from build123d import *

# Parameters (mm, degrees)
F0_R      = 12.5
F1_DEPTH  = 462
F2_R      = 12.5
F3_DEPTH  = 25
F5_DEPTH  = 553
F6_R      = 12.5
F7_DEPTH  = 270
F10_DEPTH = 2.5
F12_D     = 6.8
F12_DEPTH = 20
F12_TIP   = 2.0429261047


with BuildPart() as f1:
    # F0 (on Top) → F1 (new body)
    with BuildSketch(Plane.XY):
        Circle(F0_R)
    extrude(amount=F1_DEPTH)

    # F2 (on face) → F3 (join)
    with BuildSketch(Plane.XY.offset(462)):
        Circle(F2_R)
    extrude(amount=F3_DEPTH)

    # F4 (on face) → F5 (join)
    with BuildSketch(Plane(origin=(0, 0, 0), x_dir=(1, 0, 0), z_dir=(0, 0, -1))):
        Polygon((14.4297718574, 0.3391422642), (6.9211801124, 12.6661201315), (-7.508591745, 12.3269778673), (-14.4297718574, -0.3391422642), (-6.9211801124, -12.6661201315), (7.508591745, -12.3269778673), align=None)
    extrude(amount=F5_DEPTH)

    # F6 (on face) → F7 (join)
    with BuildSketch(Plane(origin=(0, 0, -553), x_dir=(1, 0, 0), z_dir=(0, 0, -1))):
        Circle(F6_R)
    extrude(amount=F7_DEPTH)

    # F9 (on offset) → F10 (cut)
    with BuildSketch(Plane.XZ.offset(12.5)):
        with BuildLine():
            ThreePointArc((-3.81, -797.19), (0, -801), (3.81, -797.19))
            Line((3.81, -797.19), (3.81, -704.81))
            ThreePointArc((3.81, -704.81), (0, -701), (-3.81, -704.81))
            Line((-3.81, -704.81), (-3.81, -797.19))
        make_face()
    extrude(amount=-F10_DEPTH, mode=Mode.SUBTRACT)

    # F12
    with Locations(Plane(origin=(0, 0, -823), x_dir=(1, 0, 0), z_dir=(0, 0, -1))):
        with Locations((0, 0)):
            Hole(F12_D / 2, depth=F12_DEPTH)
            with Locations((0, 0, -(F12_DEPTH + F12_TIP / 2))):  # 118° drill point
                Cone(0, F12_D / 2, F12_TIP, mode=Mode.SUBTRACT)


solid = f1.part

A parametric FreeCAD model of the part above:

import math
import FreeCAD as App
import Part
import Sketcher
from FreeCAD import Vector
Q = App.Units.Quantity


def add_polygon(sketch, points):
    """Adds a closed chain of lines whose ends are joined by coincident constraints."""
    first, n = sketch.GeometryCount, len(points)
    for a, b in zip(points, points[1:] + points[:1]):
        sketch.addGeometry(Part.LineSegment(App.Vector(*a, 0), App.Vector(*b, 0)), False)
    for i in range(n):
        sketch.addConstraint(Sketcher.Constraint("Coincident", first + i, 2, first + (i + 1) % n, 1))

doc = App.newDocument("Part")
body = doc.addObject("PartDesign::Body", "Body")

# Sketch on XY plane
sketch1 = body.newObject("Sketcher::SketchObject", "Sketch")
sketch1.AttachmentSupport = (doc.getObject("XY_Plane"), [""])
sketch1.MapMode = "FlatFace"
sketch1.addGeometry(Part.Circle(Vector(0, 0, 0), Vector(0, 0, 1), 12), False)
sketch1.addConstraint(Sketcher.Constraint("Coincident", 0, 3, -1, 1))
sketch1.addConstraint(Sketcher.Constraint("Diameter", 0, Q("25 mm")))
pad1 = body.newObject("PartDesign::Pad", "Pad")
pad1.Profile = sketch1
pad1.Length = 462

# Sketch on XY plane
sketch2 = body.newObject("Sketcher::SketchObject", "Sketch001")
sketch2.AttachmentSupport = (doc.getObject("XY_Plane"), [""])
sketch2.MapMode = "FlatFace"
sketch2.AttachmentOffset = App.Placement(Vector(0, 0, 462), App.Rotation())
sketch2.addGeometry(Part.Circle(Vector(0, 0, 0), Vector(0, 0, 1), 12), False)
sketch2.addConstraint(Sketcher.Constraint("Coincident", 0, 3, -1, 1))
sketch2.addConstraint(Sketcher.Constraint("Diameter", 0, Q("25 mm")))
pad2 = body.newObject("PartDesign::Pad", "Pad001")
pad2.Profile = sketch2
pad2.Length = 25

# Sketch on XY plane
sketch3 = body.newObject("Sketcher::SketchObject", "Sketch002")
sketch3.AttachmentSupport = (doc.getObject("XY_Plane"), [""])
sketch3.MapMode = "FlatFace"
add_polygon(sketch3, [(14, 0), (7, -13), (-8, -12), (-14, 0), (-7, 13), (8, 12)])  # lines 0-5
sketch3.addConstraint(Sketcher.Constraint("Symmetric", 0, 2, 3, 2, -1, 1))
sketch3.addConstraint(Sketcher.Constraint("Symmetric", 1, 2, 4, 2, -1, 1))
sketch3.addConstraint(Sketcher.Constraint("Symmetric", 2, 2, 5, 2, -1, 1))
sketch3.addConstraint(Sketcher.Constraint("Equal", 0, 1))
sketch3.addConstraint(Sketcher.Constraint("Equal", 1, 2))
sketch3.addConstraint(Sketcher.Constraint("DistanceX", -1, 1, 0, 2, Q("6.92118 mm")))
sketch3.addConstraint(Sketcher.Constraint("DistanceY", 0, 2, -1, 1, Q("12.66612 mm")))
sketch3.addConstraint(Sketcher.Constraint("DistanceX", 1, 2, -1, 1, Q("7.508592 mm")))
sketch3.addConstraint(Sketcher.Constraint("DistanceX", 2, 2, -1, 1, Q("14.429772 mm")))
pad3 = body.newObject("PartDesign::Pad", "Pad002")
pad3.Profile = sketch3
pad3.Length = 553
pad3.Reversed = True

# Sketch on XY plane
sketch4 = body.newObject("Sketcher::SketchObject", "Sketch003")
sketch4.AttachmentSupport = (doc.getObject("XY_Plane"), [""])
sketch4.MapMode = "FlatFace"
sketch4.AttachmentOffset = App.Placement(Vector(0, 0, -553), App.Rotation())
sketch4.addGeometry(Part.Circle(Vector(0, 0, 0), Vector(0, 0, 1), 12), False)
sketch4.addConstraint(Sketcher.Constraint("Coincident", 0, 3, -1, 1))
sketch4.addConstraint(Sketcher.Constraint("Diameter", 0, Q("25 mm")))
pad4 = body.newObject("PartDesign::Pad", "Pad003")
pad4.Profile = sketch4
pad4.Length = 270
pad4.Reversed = True

# Sketch on XZ plane
sketch5 = body.newObject("Sketcher::SketchObject", "Sketch004")
sketch5.AttachmentSupport = (doc.getObject("XZ_Plane"), [""])
sketch5.MapMode = "FlatFace"
sketch5.AttachmentOffset = App.Placement(Vector(0, 0, 12.5), App.Rotation())
sketch5.addGeometry(Part.ArcOfCircle(Part.Circle(Vector(0, -797.2, 0), Vector(0, 0, 1), 3.8), math.radians(180), math.radians(360)), False)
sketch5.addGeometry(Part.LineSegment(Vector(3.8, -797.2, 0), Vector(3.8, -704.8, 0)), False)
sketch5.addGeometry(Part.ArcOfCircle(Part.Circle(Vector(0, -704.8, 0), Vector(0, 0, 1), 3.8), math.radians(0), math.radians(180)), False)
sketch5.addGeometry(Part.LineSegment(Vector(-3.8, -704.8, 0), Vector(-3.8, -797.2, 0)), False)
sketch5.addConstraint(Sketcher.Constraint("Tangent", 0, 2, 1, 1))
sketch5.addConstraint(Sketcher.Constraint("Tangent", 1, 2, 2, 1))
sketch5.addConstraint(Sketcher.Constraint("Tangent", 2, 2, 3, 1))
sketch5.addConstraint(Sketcher.Constraint("Tangent", 3, 2, 0, 1))
sketch5.addConstraint(Sketcher.Constraint("Vertical", 1))
sketch5.addConstraint(Sketcher.Constraint("Vertical", 3))
sketch5.addConstraint(Sketcher.Constraint("PointOnObject", 0, 3, -2))
sketch5.addConstraint(Sketcher.Constraint("Radius", 0, Q("3.81 mm")))
sketch5.addConstraint(Sketcher.Constraint("DistanceY", 1, 1, 1, 2, Q("92.38 mm")))
sketch5.addConstraint(Sketcher.Constraint("DistanceY", 0, 3, -1, 1, Q("797.19 mm")))
pocket1 = body.newObject("PartDesign::Pocket", "Pocket")
pocket1.Profile = sketch5
pocket1.Length = 2.5

# Sketch on XY plane
sketch6 = body.newObject("Sketcher::SketchObject", "Sketch005")
sketch6.AttachmentSupport = (doc.getObject("XY_Plane"), [""])
sketch6.MapMode = "FlatFace"
sketch6.AttachmentOffset = App.Placement(Vector(0, 0, -823), App.Rotation())
sketch6.addGeometry(Part.Circle(Vector(0, 0, 0), Vector(0, 0, 1), 3.4), False)
sketch6.addConstraint(Sketcher.Constraint("Coincident", 0, 3, -1, 1))
sketch6.addConstraint(Sketcher.Constraint("Diameter", 0, Q("6.8 mm")))
doc.recompute()
hole = body.newObject("PartDesign::Hole", "Hole")
hole.Profile = sketch6
hole.ThreadType = "None"
hole.Diameter = 6.8
hole.DepthType = "Dimension"
hole.Depth = 20
hole.DrillPoint = "Angled"
hole.DrillPointAngle = 118
hole.Reversed = True

doc.recompute()
